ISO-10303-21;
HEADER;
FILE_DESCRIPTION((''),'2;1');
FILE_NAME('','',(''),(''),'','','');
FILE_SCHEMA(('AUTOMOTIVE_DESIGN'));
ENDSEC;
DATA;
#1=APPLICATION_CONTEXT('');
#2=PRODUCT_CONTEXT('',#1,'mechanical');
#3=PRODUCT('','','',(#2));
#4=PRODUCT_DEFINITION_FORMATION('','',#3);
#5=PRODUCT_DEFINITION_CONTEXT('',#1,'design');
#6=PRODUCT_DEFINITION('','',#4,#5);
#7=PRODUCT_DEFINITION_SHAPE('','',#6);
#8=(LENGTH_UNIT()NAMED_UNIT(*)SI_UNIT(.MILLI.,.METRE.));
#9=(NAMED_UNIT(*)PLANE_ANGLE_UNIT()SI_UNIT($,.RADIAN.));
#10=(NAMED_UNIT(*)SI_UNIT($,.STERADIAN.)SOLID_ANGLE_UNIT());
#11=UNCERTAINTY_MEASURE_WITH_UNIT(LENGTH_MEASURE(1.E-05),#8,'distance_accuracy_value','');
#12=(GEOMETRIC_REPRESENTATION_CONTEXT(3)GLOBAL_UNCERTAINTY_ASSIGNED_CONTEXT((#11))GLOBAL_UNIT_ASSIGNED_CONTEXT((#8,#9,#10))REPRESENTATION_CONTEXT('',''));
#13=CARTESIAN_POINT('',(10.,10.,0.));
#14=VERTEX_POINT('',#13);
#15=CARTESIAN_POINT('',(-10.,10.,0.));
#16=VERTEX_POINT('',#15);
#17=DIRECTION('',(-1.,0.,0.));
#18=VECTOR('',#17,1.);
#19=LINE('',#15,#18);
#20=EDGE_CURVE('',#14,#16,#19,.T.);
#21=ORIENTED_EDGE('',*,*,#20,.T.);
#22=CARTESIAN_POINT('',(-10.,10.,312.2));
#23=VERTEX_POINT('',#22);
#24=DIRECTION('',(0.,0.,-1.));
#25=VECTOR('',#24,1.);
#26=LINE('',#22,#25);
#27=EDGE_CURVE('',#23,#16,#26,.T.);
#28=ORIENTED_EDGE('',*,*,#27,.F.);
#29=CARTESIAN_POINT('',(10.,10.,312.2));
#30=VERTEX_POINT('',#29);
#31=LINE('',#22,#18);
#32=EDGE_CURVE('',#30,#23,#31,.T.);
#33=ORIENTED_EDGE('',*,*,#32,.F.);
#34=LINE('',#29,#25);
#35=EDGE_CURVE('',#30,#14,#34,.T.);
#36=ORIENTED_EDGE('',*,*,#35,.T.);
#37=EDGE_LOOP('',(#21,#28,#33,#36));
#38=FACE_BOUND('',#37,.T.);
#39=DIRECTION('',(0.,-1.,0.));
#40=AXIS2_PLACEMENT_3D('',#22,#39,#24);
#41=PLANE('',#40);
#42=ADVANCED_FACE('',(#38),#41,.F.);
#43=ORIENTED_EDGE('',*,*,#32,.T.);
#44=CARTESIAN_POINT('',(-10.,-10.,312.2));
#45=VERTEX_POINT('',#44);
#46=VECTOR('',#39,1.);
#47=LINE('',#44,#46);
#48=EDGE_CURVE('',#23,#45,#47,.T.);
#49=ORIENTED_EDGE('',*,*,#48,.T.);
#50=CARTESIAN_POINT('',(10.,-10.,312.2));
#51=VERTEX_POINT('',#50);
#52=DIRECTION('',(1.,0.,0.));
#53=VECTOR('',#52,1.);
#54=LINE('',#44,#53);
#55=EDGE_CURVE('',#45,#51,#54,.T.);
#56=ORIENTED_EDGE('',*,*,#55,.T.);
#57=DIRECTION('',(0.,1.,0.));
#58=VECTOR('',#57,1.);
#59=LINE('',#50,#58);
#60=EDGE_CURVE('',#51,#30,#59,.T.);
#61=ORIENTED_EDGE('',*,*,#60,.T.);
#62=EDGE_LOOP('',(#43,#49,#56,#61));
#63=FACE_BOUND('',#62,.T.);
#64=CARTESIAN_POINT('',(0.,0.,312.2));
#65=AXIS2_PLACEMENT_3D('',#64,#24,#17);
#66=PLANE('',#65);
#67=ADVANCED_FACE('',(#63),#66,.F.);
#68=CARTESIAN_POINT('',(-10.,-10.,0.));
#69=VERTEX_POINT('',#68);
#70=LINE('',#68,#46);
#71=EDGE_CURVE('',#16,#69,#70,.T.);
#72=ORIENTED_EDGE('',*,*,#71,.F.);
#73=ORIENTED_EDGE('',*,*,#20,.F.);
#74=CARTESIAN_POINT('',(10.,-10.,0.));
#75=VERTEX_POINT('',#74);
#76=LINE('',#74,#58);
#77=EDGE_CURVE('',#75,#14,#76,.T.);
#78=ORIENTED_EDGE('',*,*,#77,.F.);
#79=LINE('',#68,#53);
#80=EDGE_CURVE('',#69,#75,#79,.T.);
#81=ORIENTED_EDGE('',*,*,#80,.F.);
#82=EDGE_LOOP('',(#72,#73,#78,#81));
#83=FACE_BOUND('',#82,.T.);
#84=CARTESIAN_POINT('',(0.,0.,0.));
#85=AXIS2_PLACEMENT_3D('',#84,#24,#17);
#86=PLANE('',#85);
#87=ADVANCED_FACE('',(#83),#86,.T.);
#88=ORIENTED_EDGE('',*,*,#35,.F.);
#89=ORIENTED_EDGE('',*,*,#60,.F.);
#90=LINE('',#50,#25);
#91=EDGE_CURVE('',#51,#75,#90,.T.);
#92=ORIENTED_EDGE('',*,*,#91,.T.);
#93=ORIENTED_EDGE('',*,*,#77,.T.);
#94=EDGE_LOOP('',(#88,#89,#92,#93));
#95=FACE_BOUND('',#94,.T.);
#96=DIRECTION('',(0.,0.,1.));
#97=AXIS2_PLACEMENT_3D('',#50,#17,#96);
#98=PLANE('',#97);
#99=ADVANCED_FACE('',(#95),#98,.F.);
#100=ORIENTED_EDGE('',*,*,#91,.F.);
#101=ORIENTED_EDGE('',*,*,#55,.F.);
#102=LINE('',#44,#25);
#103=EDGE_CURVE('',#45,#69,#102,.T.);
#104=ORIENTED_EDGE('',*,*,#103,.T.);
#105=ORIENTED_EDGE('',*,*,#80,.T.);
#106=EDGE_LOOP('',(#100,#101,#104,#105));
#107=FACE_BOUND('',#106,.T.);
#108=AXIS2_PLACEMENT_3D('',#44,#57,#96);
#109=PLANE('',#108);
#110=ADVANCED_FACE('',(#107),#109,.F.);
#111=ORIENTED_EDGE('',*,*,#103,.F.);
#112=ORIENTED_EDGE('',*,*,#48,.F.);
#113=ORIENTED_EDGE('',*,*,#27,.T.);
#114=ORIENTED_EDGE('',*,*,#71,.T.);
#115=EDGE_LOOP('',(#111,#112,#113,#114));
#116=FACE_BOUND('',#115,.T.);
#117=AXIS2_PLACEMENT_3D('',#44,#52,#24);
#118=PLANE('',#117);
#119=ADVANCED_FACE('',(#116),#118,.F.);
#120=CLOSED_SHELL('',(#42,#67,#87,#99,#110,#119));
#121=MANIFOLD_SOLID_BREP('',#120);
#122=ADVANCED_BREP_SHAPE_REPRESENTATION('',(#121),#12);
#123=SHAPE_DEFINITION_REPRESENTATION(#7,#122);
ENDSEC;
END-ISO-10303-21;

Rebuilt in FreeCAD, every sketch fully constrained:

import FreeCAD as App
import Part
import Sketcher
Q = App.Units.Quantity

doc = App.newDocument("Part")
body = doc.addObject("PartDesign::Body", "Body")

sketch1 = doc.addObject("Sketcher::SketchObject", "Sketch")
body.addObject(sketch1)
sketch1.AttachmentSupport = (doc.XY_Plane, [""])
sketch1.MapMode = "FlatFace"
sketch1.addGeometry(Part.LineSegment(App.Vector(-10, 10, 0), App.Vector(-10, -10, 0)), False)
sketch1.addGeometry(Part.LineSegment(App.Vector(-10, -10, 0), App.Vector(10, -10, 0)), False)
sketch1.addGeometry(Part.LineSegment(App.Vector(10, -10, 0), App.Vector(10, 10, 0)), False)
sketch1.addGeometry(Part.LineSegment(App.Vector(10, 10, 0), App.Vector(-10, 10, 0)), False)
sketch1.addConstraint(Sketcher.Constraint("Coincident", 0, 2, 1, 1))
sketch1.addConstraint(Sketcher.Constraint("Coincident", 1, 2, 2, 1))
sketch1.addConstraint(Sketcher.Constraint("Coincident", 2, 2, 3, 1))
sketch1.addConstraint(Sketcher.Constraint("Coincident", 3, 2, 0, 1))
sketch1.addConstraint(Sketcher.Constraint("Vertical", 0))
sketch1.addConstraint(Sketcher.Constraint("Horizontal", 1))
sketch1.addConstraint(Sketcher.Constraint("Vertical", 2))
sketch1.addConstraint(Sketcher.Constraint("Horizontal", 3))
sketch1.addConstraint(Sketcher.Constraint("Symmetric", 0, 2, 2, 2, -1, 1))
sketch1.addConstraint(Sketcher.Constraint("Equal", 3, 0))
sketch1.addConstraint(Sketcher.Constraint("DistanceX", 1, 1, 1, 2, Q("20 mm")))
pad1 = doc.addObject("PartDesign::Pad", "Pad")
body.addObject(pad1)
pad1.Profile = sketch1
pad1.Length = 312.2

doc.recompute()
